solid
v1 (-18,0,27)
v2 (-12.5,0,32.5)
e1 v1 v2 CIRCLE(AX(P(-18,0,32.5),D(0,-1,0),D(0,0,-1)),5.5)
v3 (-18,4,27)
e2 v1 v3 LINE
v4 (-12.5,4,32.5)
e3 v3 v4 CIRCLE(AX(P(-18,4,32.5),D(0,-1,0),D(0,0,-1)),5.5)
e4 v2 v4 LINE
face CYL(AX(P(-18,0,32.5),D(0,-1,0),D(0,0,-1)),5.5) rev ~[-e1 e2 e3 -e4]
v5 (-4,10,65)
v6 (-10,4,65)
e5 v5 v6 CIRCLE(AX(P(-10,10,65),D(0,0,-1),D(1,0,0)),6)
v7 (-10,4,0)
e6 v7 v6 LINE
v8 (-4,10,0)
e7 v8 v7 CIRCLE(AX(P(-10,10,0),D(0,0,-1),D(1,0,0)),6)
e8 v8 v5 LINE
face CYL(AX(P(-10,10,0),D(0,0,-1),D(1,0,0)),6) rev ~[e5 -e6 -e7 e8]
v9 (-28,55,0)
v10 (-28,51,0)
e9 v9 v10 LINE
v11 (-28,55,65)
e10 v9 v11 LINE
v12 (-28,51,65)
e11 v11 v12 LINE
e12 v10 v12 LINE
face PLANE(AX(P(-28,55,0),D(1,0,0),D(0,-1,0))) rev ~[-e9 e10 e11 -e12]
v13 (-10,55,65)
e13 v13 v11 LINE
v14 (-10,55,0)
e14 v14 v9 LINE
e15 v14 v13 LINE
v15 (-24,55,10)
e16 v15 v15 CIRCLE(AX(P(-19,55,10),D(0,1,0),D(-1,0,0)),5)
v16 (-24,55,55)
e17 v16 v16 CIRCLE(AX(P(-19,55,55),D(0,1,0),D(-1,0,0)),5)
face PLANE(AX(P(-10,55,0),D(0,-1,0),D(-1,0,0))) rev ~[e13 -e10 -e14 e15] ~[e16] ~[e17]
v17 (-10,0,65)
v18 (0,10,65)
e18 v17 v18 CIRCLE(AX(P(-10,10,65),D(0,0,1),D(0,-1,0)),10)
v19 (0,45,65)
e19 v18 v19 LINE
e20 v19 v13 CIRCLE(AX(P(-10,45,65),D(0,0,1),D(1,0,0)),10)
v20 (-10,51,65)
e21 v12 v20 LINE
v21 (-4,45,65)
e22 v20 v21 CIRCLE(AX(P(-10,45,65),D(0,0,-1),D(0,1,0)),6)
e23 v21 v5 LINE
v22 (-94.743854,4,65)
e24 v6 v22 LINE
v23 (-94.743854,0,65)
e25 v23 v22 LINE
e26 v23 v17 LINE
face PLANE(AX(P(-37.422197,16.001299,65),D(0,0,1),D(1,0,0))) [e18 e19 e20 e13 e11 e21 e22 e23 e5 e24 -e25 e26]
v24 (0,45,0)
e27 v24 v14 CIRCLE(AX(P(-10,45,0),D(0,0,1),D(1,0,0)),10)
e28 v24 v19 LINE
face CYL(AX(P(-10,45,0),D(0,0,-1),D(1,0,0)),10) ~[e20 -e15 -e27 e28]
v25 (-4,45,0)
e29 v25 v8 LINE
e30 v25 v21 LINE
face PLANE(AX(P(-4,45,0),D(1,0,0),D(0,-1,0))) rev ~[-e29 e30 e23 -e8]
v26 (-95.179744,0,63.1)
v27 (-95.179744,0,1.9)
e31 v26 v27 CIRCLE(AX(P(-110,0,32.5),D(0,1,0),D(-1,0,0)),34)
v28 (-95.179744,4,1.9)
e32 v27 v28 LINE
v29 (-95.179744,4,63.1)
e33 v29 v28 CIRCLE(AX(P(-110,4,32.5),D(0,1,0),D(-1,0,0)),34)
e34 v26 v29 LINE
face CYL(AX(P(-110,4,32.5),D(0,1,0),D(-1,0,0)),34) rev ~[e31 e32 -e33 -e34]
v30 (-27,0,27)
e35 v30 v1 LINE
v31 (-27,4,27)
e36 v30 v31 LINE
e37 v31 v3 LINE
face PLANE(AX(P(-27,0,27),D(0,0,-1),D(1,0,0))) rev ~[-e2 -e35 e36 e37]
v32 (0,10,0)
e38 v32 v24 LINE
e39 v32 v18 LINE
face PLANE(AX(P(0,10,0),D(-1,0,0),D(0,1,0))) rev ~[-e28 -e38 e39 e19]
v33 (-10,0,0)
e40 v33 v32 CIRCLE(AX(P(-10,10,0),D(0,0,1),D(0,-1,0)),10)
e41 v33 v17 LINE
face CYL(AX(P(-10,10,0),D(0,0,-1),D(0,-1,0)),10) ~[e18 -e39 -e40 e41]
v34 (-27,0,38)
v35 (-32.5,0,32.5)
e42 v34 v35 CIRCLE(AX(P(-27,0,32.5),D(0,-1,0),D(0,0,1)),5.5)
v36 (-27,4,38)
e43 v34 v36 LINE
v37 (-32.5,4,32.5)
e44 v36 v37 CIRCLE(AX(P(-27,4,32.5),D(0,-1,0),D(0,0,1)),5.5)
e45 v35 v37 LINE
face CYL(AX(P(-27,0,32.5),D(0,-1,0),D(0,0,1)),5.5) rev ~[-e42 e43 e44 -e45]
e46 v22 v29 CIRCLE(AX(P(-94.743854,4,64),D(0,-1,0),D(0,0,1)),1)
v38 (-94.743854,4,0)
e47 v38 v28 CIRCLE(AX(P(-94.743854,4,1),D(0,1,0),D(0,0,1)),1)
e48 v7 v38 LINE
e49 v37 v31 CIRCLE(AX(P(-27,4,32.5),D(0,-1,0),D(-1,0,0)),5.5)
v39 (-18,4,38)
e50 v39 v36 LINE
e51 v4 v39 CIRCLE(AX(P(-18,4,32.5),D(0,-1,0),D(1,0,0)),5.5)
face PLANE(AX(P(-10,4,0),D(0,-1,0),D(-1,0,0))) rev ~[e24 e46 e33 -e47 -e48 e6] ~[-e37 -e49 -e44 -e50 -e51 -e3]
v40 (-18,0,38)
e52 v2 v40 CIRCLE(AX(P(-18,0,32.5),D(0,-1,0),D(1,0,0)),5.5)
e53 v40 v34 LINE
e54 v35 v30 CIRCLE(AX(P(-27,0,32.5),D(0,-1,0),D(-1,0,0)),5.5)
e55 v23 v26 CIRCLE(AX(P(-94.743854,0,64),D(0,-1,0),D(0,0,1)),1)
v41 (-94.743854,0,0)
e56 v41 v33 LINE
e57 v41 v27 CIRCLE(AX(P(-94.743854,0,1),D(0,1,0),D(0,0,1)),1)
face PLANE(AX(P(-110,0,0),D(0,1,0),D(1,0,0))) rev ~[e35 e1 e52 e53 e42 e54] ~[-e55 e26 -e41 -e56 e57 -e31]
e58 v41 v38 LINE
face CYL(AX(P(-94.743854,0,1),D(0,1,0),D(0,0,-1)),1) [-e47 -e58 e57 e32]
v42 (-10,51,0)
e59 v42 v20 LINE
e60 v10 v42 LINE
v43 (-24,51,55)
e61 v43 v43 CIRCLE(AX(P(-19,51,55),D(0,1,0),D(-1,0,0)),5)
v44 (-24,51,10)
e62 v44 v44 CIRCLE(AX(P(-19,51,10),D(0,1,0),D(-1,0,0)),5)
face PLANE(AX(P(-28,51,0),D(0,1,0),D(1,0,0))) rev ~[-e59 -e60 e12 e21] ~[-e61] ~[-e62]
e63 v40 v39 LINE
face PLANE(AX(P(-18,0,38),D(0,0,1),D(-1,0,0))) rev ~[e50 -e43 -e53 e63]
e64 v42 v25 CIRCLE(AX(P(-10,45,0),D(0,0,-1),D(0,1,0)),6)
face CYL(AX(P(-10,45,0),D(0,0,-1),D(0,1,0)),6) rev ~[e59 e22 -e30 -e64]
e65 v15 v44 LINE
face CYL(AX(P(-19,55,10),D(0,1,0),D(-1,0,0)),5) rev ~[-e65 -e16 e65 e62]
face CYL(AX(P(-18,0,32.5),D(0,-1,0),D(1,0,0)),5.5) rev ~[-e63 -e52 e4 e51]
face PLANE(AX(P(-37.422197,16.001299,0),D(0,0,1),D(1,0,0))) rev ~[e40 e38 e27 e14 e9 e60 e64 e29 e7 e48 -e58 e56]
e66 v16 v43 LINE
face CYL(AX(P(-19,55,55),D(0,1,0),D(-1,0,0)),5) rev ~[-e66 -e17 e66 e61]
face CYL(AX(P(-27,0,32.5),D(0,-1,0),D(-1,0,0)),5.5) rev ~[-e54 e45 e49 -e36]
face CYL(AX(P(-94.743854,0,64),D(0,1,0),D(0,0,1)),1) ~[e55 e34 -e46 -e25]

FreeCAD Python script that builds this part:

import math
import FreeCAD as App
import Part
import Sketcher


def edges_at(feature, points):
    """Names of the edges that pass closest to the given points."""
    edges = feature.Shape.Edges
    near = lambda p: min(range(len(edges)), key=lambda i: edges[i].distToShape(Part.Vertex(*p))[0])
    return sorted({f"Edge{near(p) + 1}" for p in points})

doc = App.newDocument("Part")
body = doc.addObject("PartDesign::Body", "Body")

sketch1 = body.newObject("Sketcher::SketchObject", "Sketch")
sketch1.AttachmentSupport = (doc.getObject("XY_Plane"), [""])
sketch1.MapMode = "FlatFace"
sketch1.addGeometry([
    Part.ArcOfCircle(Part.Circle(App.Vector(-10, 10, 0), App.Vector(0, 0, 1), 10), math.radians(-90), math.radians(0)),
    Part.LineSegment(App.Vector(0, 10, 0), App.Vector(0, 45, 0)),
    Part.ArcOfCircle(Part.Circle(App.Vector(-10, 45, 0), App.Vector(0, 0, 1), 10), math.radians(0), math.radians(90)),
    Part.LineSegment(App.Vector(-10, 55, 0), App.Vector(-28, 55, 0)),
    Part.LineSegment(App.Vector(-28, 55, 0), App.Vector(-28, 51, 0)),
    Part.LineSegment(App.Vector(-28, 51, 0), App.Vector(-10, 51, 0)),
    Part.ArcOfCircle(Part.Circle(App.Vector(-10, 45, 0), App.Vector(0, 0, 1), 6), math.radians(0), math.radians(90)),
    Part.LineSegment(App.Vector(-4, 45, 0), App.Vector(-4, 10, 0)),
    Part.ArcOfCircle(Part.Circle(App.Vector(-10, 10, 0), App.Vector(0, 0, 1), 6), math.radians(-90), math.radians(0)),
    Part.LineSegment(App.Vector(-10, 4, 0), App.Vector(-110, 4, 0)),
    Part.LineSegment(App.Vector(-110, 4, 0), App.Vector(-110, 0, 0)),
    Part.LineSegment(App.Vector(-110, 0, 0), App.Vector(-10, 0, 0)),
], False)
sketch1.addConstraint([
    Sketcher.Constraint("Tangent", 0, 2, 1, 1),
    Sketcher.Constraint("Tangent", 1, 2, 2, 1),
    Sketcher.Constraint("Tangent", 2, 2, 3, 1),
    Sketcher.Constraint("Coincident", 3, 2, 4, 1),
    Sketcher.Constraint("Coincident", 4, 2, 5, 1),
    Sketcher.Constraint("Tangent", 5, 2, 6, 2),
    Sketcher.Constraint("Tangent", 6, 1, 7, 1),
    Sketcher.Constraint("Tangent", 7, 2, 8, 2),
    Sketcher.Constraint("Tangent", 8, 1, 9, 1),
    Sketcher.Constraint("Coincident", 9, 2, 10, 1),
    Sketcher.Constraint("Coincident", 10, 2, 11, 1),
    Sketcher.Constraint("Tangent", 11, 2, 0, 1),
    Sketcher.Constraint("Vertical", 1),
    Sketcher.Constraint("Horizontal", 3),
    Sketcher.Constraint("Vertical", 4),
    Sketcher.Constraint("Horizontal", 5),
    Sketcher.Constraint("Vertical", 7),
    Sketcher.Constraint("Horizontal", 9),
    Sketcher.Constraint("Vertical", 10),
    Sketcher.Constraint("Horizontal", 11),
    Sketcher.Constraint("Coincident", 6, 3, 2, 3),
    Sketcher.Constraint("Coincident", 8, 3, 0, 3),
    Sketcher.Constraint("Equal", 0, 2),
    Sketcher.Constraint("PointOnObject", 0, 2, -2),
    Sketcher.Constraint("PointOnObject", 10, 2, -1),
    Sketcher.Constraint("Radius", 0, 10.0),
    Sketcher.Constraint("Radius", 6, 6.0),
    Sketcher.Constraint("DistanceX", 3, 2, 3, 1, 18.0),
    Sketcher.Constraint("DistanceX", 9, 2, 9, 1, 100.0),
    Sketcher.Constraint("DistanceY", 1, 1, 1, 2, 35.0),
])
pad1 = body.newObject("PartDesign::Pad", "Pad")
pad1.Profile = sketch1
pad1.Length = 65

sketch2 = body.newObject("Sketcher::SketchObject", "Sketch001")
sketch2.AttachmentSupport = (doc.getObject("XZ_Plane"), [""])
sketch2.MapMode = "FlatFace"
sketch2.AttachmentOffset = App.Placement(App.Vector(0, 0, -4), App.Rotation())
sketch2.addGeometry(Part.Circle(App.Vector(-110, 32, 0), App.Vector(0, 0, 1), 34), False)
sketch2.addConstraint([
    Sketcher.Constraint("Diameter", 0, 68.0),
    Sketcher.Constraint("DistanceX", 0, 3, -1, 1, 110.0),
    Sketcher.Constraint("DistanceY", -1, 1, 0, 3, 32.5),
])
pocket1 = body.newObject("PartDesign::Pocket", "Pocket")
pocket1.Profile = sketch2
pocket1.Length = 25
pocket1.Reversed = True
doc.recompute()

fillet = body.newObject("PartDesign::Fillet", "Fillet")
fillet.Base = (pocket1, edges_at(pocket1, [(-100.013, 2, 65), (-100.013, 2, 0)]))
fillet.Radius = 1

sketch3 = body.newObject("Sketcher::SketchObject", "Sketch002")
sketch3.AttachmentSupport = (doc.getObject("XZ_Plane"), [""])
sketch3.MapMode = "FlatFace"
sketch3.AttachmentOffset = App.Placement(App.Vector(0, 0, -55), App.Rotation())
sketch3.addGeometry([
    Part.Circle(App.Vector(-19, 55, 0), App.Vector(0, 0, 1), 5),
    Part.Circle(App.Vector(-19, 10, 0), App.Vector(0, 0, 1), 5),
], False)
sketch3.addConstraint([
    Sketcher.Constraint("Equal", 0, 1),
    Sketcher.Constraint("Vertical", 0, 3, 1, 3),
    Sketcher.Constraint("Diameter", 0, 10.0),
    Sketcher.Constraint("DistanceX", 0, 3, -1, 1, 19.0),
    Sketcher.Constraint("DistanceY", -1, 1, 0, 3, 55.0),
    Sketcher.Constraint("DistanceY", -1, 1, 1, 3, 10.0),
])
pocket2 = body.newObject("PartDesign::Pocket", "Pocket001")
pocket2.Profile = sketch3
pocket2.Length = 25
pocket2.Reversed = True

sketch4 = body.newObject("Sketcher::SketchObject", "Sketch003")
sketch4.AttachmentSupport = (doc.getObject("XZ_Plane"), [""])
sketch4.MapMode = "FlatFace"
sketch4.addGeometry([
    Part.LineSegment(App.Vector(-27, 27, 0), App.Vector(-18, 27, 0)),
    Part.ArcOfCircle(Part.Circle(App.Vector(-18, 32, 0), App.Vector(0, 0, 1), 6), math.radians(-90), math.radians(0)),
    Part.ArcOfCircle(Part.Circle(App.Vector(-18, 32, 0), App.Vector(0, 0, 1), 6), math.radians(0), math.radians(90)),
    Part.LineSegment(App.Vector(-18, 38, 0), App.Vector(-27, 38, 0)),
    Part.ArcOfCircle(Part.Circle(App.Vector(-27, 32, 0), App.Vector(0, 0, 1), 6), math.radians(90), math.radians(180)),
    Part.ArcOfCircle(Part.Circle(App.Vector(-27, 32, 0), App.Vector(0, 0, 1), 6), math.radians(180), math.radians(270)),
], False)
sketch4.addConstraint([
    Sketcher.Constraint("Tangent", 0, 2, 1, 1),
    Sketcher.Constraint("Tangent", 1, 2, 2, 1),
    Sketcher.Constraint("Tangent", 2, 2, 3, 1),
    Sketcher.Constraint("Tangent", 3, 2, 4, 1),
    Sketcher.Constraint("Tangent", 4, 2, 5, 1),
    Sketcher.Constraint("Tangent", 5, 2, 0, 1),
    Sketcher.Constraint("Horizontal", 0),
    Sketcher.Constraint("Horizontal", 3),
    Sketcher.Constraint("Equal", 1, 2),
    Sketcher.Constraint("Equal", 2, 4),
    Sketcher.Constraint("Horizontal", 5, 3, 1, 2),
    Sketcher.Constraint("Horizontal", 1, 2, 4, 2),
    Sketcher.Constraint("Radius", 1, 5.5),
    Sketcher.Constraint("DistanceX", 0, 1, 0, 2, 9.0),
    Sketcher.Constraint("DistanceX", 1, 3, -1, 1, 18.0),
    Sketcher.Constraint("DistanceY", -1, 1, 0, 2, 27.0),
])
pocket3 = body.newObject("PartDesign::Pocket", "Pocket002")
pocket3.Profile = sketch4
pocket3.Length = 25

doc.recompute()
